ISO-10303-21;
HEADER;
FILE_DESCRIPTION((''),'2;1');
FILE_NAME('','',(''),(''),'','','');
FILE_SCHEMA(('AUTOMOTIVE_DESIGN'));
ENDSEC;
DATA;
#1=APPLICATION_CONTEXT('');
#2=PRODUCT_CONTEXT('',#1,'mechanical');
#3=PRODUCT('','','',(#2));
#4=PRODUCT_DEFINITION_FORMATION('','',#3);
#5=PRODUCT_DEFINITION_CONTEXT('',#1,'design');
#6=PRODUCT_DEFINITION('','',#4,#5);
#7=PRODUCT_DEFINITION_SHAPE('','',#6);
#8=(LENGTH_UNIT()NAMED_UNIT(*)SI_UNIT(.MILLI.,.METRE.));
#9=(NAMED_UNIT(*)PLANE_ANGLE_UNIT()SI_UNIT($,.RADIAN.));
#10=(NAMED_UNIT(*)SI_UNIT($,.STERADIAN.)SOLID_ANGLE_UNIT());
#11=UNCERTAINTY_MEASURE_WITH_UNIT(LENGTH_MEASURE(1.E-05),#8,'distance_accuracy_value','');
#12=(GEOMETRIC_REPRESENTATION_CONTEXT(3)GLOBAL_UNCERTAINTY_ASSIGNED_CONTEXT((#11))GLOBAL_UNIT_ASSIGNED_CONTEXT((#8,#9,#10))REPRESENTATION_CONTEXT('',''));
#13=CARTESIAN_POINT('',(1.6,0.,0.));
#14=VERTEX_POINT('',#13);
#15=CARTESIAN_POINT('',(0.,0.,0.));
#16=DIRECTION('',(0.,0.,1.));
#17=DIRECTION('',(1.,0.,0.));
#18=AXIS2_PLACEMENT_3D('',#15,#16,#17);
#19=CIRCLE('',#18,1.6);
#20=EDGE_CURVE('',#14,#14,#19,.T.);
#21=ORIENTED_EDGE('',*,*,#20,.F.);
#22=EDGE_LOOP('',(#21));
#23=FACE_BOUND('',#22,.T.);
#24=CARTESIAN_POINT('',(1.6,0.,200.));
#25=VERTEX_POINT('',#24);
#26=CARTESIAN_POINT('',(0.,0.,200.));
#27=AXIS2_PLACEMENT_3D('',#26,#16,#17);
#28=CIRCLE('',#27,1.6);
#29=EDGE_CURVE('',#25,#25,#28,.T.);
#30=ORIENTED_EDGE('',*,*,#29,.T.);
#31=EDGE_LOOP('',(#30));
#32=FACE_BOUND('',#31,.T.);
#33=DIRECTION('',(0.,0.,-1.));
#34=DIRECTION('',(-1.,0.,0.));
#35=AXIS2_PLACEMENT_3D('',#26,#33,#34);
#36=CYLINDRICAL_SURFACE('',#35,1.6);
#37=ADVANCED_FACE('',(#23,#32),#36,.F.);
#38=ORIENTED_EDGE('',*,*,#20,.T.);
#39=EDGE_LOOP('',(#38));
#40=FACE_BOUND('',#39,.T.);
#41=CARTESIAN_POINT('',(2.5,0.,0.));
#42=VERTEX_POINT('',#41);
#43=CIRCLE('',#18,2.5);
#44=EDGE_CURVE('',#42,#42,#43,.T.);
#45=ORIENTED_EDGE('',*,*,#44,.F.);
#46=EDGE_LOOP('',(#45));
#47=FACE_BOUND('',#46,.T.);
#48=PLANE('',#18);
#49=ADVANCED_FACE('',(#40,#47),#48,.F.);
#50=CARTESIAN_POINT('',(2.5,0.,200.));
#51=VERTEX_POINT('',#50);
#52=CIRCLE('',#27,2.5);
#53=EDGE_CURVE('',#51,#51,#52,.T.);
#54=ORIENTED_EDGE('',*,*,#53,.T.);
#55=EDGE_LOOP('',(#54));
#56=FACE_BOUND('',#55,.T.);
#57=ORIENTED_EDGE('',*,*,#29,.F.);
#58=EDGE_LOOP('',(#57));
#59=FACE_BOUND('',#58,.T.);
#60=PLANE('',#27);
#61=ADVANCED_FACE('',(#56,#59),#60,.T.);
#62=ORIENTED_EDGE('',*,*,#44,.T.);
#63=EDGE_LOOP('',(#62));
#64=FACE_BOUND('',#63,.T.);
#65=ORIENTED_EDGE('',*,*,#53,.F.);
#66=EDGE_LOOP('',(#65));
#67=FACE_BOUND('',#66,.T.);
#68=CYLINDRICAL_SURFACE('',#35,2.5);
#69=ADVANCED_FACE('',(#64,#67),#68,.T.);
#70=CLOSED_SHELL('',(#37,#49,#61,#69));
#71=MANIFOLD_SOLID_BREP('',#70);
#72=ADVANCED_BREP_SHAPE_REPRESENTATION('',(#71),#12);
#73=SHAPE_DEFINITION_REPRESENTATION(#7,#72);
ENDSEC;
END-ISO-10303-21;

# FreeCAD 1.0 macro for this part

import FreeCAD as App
import Part
import Sketcher

V = App.Vector
Q = App.Units.Quantity

doc = App.newDocument("Part")
body = doc.addObject("PartDesign::Body", "Body")

# Sketch on XY plane
sketch1 = body.newObject("Sketcher::SketchObject", "Sketch")
sketch1.AttachmentSupport = (doc.getObject("XY_Plane"), [""])
sketch1.MapMode = "FlatFace"
sketch1.addGeometry([
    Part.Circle(V(0, 0, 0), V(0, 0, 1), 2.5),
    Part.Circle(V(0, 0, 0), V(0, 0, 1), 1.6),
], False)
sketch1.addConstraint([
    Sketcher.Constraint("Coincident", 0, 3, -1, 1),
    Sketcher.Constraint("Coincident", 1, 3, -1, 1),
    Sketcher.Constraint("Diameter", 0, Q("5 mm")),
    Sketcher.Constraint("Diameter", 1, Q("3.2 mm")),
])
pad1 = body.newObject("PartDesign::Pad", "Pad")
pad1.Profile = sketch1
pad1.Length = 200

doc.recompute()
